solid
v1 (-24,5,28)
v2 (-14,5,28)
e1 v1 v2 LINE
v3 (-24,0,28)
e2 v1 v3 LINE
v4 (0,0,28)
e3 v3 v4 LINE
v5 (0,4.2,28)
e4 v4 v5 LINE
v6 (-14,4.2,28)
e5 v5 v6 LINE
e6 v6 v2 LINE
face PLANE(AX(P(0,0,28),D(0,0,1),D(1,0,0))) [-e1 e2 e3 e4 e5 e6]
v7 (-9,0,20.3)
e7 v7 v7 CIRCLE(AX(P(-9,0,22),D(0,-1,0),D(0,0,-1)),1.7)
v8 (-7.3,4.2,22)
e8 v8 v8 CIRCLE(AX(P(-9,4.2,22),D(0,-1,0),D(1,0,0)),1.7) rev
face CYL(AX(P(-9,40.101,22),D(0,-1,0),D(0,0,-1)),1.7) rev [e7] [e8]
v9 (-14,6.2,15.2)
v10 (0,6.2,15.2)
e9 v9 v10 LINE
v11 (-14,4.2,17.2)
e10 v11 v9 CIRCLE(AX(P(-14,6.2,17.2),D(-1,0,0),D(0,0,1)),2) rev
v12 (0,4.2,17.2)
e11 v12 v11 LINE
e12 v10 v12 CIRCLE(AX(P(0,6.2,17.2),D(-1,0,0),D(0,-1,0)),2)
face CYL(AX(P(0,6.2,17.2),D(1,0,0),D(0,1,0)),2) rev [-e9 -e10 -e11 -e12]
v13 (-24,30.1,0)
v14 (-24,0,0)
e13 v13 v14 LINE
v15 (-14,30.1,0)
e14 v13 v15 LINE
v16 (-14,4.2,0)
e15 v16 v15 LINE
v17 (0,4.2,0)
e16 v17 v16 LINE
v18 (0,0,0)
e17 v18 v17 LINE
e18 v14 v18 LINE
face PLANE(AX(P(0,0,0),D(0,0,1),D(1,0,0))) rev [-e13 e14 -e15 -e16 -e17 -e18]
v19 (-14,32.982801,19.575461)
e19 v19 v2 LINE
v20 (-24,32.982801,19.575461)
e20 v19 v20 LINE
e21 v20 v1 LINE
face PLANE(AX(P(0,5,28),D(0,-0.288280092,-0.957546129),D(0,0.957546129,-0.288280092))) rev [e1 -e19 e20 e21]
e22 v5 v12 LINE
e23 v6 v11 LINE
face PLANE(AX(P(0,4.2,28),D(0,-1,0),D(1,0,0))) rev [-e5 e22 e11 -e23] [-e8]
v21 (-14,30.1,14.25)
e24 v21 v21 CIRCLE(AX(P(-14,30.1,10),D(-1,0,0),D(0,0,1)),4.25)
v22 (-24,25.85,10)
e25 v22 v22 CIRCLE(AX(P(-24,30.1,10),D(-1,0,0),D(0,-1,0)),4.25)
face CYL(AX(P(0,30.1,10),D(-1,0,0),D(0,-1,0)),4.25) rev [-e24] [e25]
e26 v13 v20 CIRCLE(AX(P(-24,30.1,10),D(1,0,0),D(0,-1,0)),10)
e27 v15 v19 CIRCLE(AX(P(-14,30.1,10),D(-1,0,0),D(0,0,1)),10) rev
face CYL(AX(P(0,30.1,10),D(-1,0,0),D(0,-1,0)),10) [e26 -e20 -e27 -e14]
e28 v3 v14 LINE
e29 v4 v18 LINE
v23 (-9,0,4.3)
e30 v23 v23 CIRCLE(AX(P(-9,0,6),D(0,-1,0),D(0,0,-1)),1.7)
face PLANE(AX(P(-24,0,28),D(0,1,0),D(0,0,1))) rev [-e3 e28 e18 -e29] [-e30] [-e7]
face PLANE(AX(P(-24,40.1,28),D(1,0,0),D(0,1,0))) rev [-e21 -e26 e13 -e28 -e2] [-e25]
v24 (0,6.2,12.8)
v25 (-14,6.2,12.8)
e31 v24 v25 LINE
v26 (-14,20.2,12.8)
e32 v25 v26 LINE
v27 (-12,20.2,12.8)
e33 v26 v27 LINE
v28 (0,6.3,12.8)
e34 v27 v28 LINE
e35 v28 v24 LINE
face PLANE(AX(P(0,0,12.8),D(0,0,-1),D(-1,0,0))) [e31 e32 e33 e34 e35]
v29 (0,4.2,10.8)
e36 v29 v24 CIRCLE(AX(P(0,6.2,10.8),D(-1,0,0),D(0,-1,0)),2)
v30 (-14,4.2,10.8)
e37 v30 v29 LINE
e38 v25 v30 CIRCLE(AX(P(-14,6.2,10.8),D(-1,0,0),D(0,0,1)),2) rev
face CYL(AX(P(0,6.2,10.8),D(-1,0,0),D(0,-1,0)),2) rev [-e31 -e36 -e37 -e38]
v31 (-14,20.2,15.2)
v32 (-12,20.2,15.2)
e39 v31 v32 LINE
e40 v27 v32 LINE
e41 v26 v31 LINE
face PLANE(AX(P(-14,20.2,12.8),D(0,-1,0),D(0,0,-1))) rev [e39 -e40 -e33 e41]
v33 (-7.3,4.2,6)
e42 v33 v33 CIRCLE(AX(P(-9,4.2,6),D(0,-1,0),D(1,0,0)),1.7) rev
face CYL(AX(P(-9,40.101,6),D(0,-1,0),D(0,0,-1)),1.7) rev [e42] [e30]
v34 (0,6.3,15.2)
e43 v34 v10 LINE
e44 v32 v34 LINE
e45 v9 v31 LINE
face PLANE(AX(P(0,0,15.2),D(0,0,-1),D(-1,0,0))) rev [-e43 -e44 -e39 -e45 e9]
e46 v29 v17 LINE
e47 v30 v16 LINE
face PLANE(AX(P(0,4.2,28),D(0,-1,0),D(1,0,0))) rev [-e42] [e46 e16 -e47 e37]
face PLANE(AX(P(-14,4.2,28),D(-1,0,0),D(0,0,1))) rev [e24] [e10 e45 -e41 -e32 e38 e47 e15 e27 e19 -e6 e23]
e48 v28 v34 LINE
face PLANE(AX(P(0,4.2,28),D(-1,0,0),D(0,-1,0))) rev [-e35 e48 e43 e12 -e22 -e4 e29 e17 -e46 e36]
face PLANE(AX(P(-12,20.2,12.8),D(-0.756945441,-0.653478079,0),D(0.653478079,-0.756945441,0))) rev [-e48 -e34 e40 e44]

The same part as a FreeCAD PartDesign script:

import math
import FreeCAD as App
import Part
import Sketcher
from FreeCAD import Vector


def edges_at(feature, points):
    """Names of the edges that pass closest to the given points."""
    edges = feature.Shape.Edges
    near = lambda p: min(range(len(edges)), key=lambda i: edges[i].distToShape(Part.Vertex(*p))[0])
    return sorted({f"Edge{near(p) + 1}" for p in points})


def add_polygon(sketch, points):
    """Adds a closed chain of lines whose ends are joined by coincident constraints."""
    first, n = sketch.GeometryCount, len(points)
    for a, b in zip(points, points[1:] + points[:1]):
        sketch.addGeometry(Part.LineSegment(App.Vector(*a, 0), App.Vector(*b, 0)), False)
    for i in range(n):
        sketch.addConstraint(Sketcher.Constraint("Coincident", first + i, 2, first + (i + 1) % n, 1))

doc = App.newDocument("Part")
body = doc.addObject("PartDesign::Body", "Body")

# Sketch on XY plane
sketch1 = body.newObject("Sketcher::SketchObject", "Sketch")
sketch1.AttachmentSupport = (doc.getObject("XY_Plane"), [""])
sketch1.MapMode = "FlatFace"
add_polygon(sketch1, [(0, 4.2), (-14, 4.2), (-14, 40.1), (-24, 40.1), (-24, 0), (0, 0)])  # lines 0-5
sketch1.addConstraint(Sketcher.Constraint("Horizontal", 0))
sketch1.addConstraint(Sketcher.Constraint("Vertical", 1))
sketch1.addConstraint(Sketcher.Constraint("Horizontal", 2))
sketch1.addConstraint(Sketcher.Constraint("Vertical", 3))
sketch1.addConstraint(Sketcher.Constraint("Horizontal", 4))
sketch1.addConstraint(Sketcher.Constraint("Vertical", 5))
sketch1.addConstraint(Sketcher.Constraint("Coincident", 4, 2, -1, 1))
sketch1.addConstraint(Sketcher.Constraint("DistanceX", 0, 2, 0, 1, 14.0))
sketch1.addConstraint(Sketcher.Constraint("DistanceX", 2, 2, 2, 1, 10.0))
sketch1.addConstraint(Sketcher.Constraint("DistanceY", 1, 1, 1, 2, 35.9))
sketch1.addConstraint(Sketcher.Constraint("DistanceY", 3, 2, 3, 1, 40.1))
pad1 = body.newObject("PartDesign::Pad", "Pad")
pad1.Profile = sketch1
pad1.Length = 28

# Sketch on YZ plane
sketch2 = body.newObject("Sketcher::SketchObject", "Sketch001")
sketch2.AttachmentSupport = (doc.getObject("YZ_Plane"), [""])
sketch2.MapMode = "FlatFace"
sketch2.AttachmentOffset = App.Placement(Vector(0, 0, -24), App.Rotation())
sketch2.addGeometry(Part.Circle(Vector(30.1, 10, 0), Vector(0, 0, 1), 4.25), False)
sketch2.addGeometry(Part.LineSegment(Vector(32.982801, 19.575461, 0), Vector(5, 28, 0)), False)
sketch2.addGeometry(Part.LineSegment(Vector(5, 28, 0), Vector(5, 29, 0)), False)
sketch2.addGeometry(Part.LineSegment(Vector(5, 29, 0), Vector(41.1, 29, 0)), False)
sketch2.addGeometry(Part.LineSegment(Vector(41.1, 29, 0), Vector(41.1, -1, 0)), False)
sketch2.addGeometry(Part.LineSegment(Vector(41.1, -1, 0), Vector(29.1, -1, 0)), False)
sketch2.addGeometry(Part.LineSegment(Vector(29.1, -1, 0), Vector(29.1, 0, 0)), False)
sketch2.addGeometry(Part.LineSegment(Vector(29.1, 0, 0), Vector(30.1, 0, 0)), False)
sketch2.addGeometry(Part.ArcOfCircle(Part.Circle(Vector(30.1, 10, 0), Vector(0, 0, 1), 10), math.radians(-90), math.radians(73.244984)), False)
sketch2.addConstraint(Sketcher.Constraint("Coincident", 1, 2, 2, 1))
sketch2.addConstraint(Sketcher.Constraint("Coincident", 2, 2, 3, 1))
sketch2.addConstraint(Sketcher.Constraint("Coincident", 3, 2, 4, 1))
sketch2.addConstraint(Sketcher.Constraint("Coincident", 4, 2, 5, 1))
sketch2.addConstraint(Sketcher.Constraint("Coincident", 5, 2, 6, 1))
sketch2.addConstraint(Sketcher.Constraint("Coincident", 6, 2, 7, 1))
sketch2.addConstraint(Sketcher.Constraint("Tangent", 7, 2, 8, 1))
sketch2.addConstraint(Sketcher.Constraint("Tangent", 8, 2, 1, 1))
sketch2.addConstraint(Sketcher.Constraint("Vertical", 2))
sketch2.addConstraint(Sketcher.Constraint("Horizontal", 3))
sketch2.addConstraint(Sketcher.Constraint("Vertical", 4))
sketch2.addConstraint(Sketcher.Constraint("Horizontal", 5))
sketch2.addConstraint(Sketcher.Constraint("Vertical", 6))
sketch2.addConstraint(Sketcher.Constraint("Horizontal", 7))
sketch2.addConstraint(Sketcher.Constraint("Coincident", 8, 3, 0, 3))
sketch2.addConstraint(Sketcher.Constraint("PointOnObject", 6, 2, -1))
sketch2.addConstraint(Sketcher.Constraint("Equal", 7, 2))
sketch2.addConstraint(Sketcher.Constraint("Equal", 2, 6))
sketch2.addConstraint(Sketcher.Constraint("Radius", 8, 10.0))
sketch2.addConstraint(Sketcher.Constraint("Diameter", 0, 8.5))
sketch2.addConstraint(Sketcher.Constraint("DistanceX", 5, 2, 5, 1, 12.0))
sketch2.addConstraint(Sketcher.Constraint("DistanceX", 7, 1, 7, 2, 1.0))
sketch2.addConstraint(Sketcher.Constraint("DistanceY", 4, 2, 4, 1, 30.0))
sketch2.addConstraint(Sketcher.Constraint("DistanceX", 3, 1, 3, 2, 36.1))
sketch2.addConstraint(Sketcher.Constraint("DistanceX", -1, 1, 1, 2, 5.0))
pocket1 = body.newObject("PartDesign::Pocket", "Pocket")
pocket1.Profile = sketch2
pocket1.Type = "ThroughAll"
pocket1.Reversed = True

# Sketch on XZ plane
sketch3 = body.newObject("Sketcher::SketchObject", "Sketch002")
sketch3.AttachmentSupport = (doc.getObject("XZ_Plane"), [""])
sketch3.MapMode = "FlatFace"
sketch3.addGeometry(Part.Circle(Vector(-9, 22, 0), Vector(0, 0, 1), 1.7), False)
sketch3.addConstraint(Sketcher.Constraint("Diameter", 0, 3.4))
sketch3.addConstraint(Sketcher.Constraint("DistanceX", 0, 3, -1, 1, 9.0))
sketch3.addConstraint(Sketcher.Constraint("DistanceY", -1, 1, 0, 3, 22.0))
pocket2 = body.newObject("PartDesign::Pocket", "Pocket001")
pocket2.Profile = sketch3
pocket2.Type = "UpToFirst"

# Sketch on XZ plane
sketch4 = body.newObject("Sketcher::SketchObject", "Sketch003")
sketch4.AttachmentSupport = (doc.getObject("XZ_Plane"), [""])
sketch4.MapMode = "FlatFace"
sketch4.addGeometry(Part.Circle(Vector(-9, 6, 0), Vector(0, 0, 1), 1.7), False)
sketch4.addConstraint(Sketcher.Constraint("Diameter", 0, 3.4))
sketch4.addConstraint(Sketcher.Constraint("DistanceX", 0, 3, -1, 1, 9.0))
sketch4.addConstraint(Sketcher.Constraint("DistanceY", -1, 1, 0, 3, 6.0))
pocket3 = body.newObject("PartDesign::Pocket", "Pocket002")
pocket3.Profile = sketch4
pocket3.Type = "UpToFirst"

# Sketch on XY plane
sketch5 = body.newObject("Sketcher::SketchObject", "Sketch004")
sketch5.AttachmentSupport = (doc.getObject("XY_Plane"), [""])
sketch5.MapMode = "FlatFace"
sketch5.AttachmentOffset = App.Placement(Vector(0, 0, 14), App.Rotation())
add_polygon(sketch5, [(0, 4.2), (-14, 4.2), (-14, 20.2), (-12, 20.2), (0, 6.3)])  # lines 0-4
sketch5.addConstraint(Sketcher.Constraint("Horizontal", 0))
sketch5.addConstraint(Sketcher.Constraint("Vertical", 1))
sketch5.addConstraint(Sketcher.Constraint("Horizontal", 2))
sketch5.addConstraint(Sketcher.Constraint("Vertical", 4))
sketch5.addConstraint(Sketcher.Constraint("PointOnObject", 3, 2, -2))
sketch5.addConstraint(Sketcher.Constraint("DistanceX", 0, 2, 0, 1, 14.0))
sketch5.addConstraint(Sketcher.Constraint("DistanceX", 2, 1, 2, 2, 2.0))
sketch5.addConstraint(Sketcher.Constraint("DistanceY", 1, 1, 1, 2, 16.0))
sketch5.addConstraint(Sketcher.Constraint("DistanceY", 4, 2, 4, 1, 2.1))
sketch5.addConstraint(Sketcher.Constraint("DistanceY", -1, 1, 0, 2, 4.2))
pad2 = body.newObject("PartDesign::Pad", "Pad001")
pad2.Profile = sketch5
pad2.Length = 2.4
pad2.Midplane = True
doc.recompute()

fillet = body.newObject("PartDesign::Fillet", "Fillet")
fillet.Base = (pad2, edges_at(pad2, [(-7, 4.2, 15.2), (-7, 4.2, 12.8)]))
fillet.Radius = 2

doc.recompute()
